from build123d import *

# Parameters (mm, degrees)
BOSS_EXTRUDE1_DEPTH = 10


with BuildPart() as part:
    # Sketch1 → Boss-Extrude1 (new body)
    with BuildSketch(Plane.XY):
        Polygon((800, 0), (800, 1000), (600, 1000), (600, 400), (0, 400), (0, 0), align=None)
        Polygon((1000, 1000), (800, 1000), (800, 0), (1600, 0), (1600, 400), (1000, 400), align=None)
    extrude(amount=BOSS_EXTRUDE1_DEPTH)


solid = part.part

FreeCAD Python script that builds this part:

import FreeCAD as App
import Part
import Sketcher
from FreeCAD import Vector
Q = App.Units.Quantity


def add_polygon(sketch, points):
    """Adds a closed chain of lines whose ends are joined by coincident constraints."""
    first, n = sketch.GeometryCount, len(points)
    for a, b in zip(points, points[1:] + points[:1]):
        sketch.addGeometry(Part.LineSegment(App.Vector(*a, 0), App.Vector(*b, 0)), False)
    for i in range(n):
        sketch.addConstraint(Sketcher.Constraint("Coincident", first + i, 2, first + (i + 1) % n, 1))

doc = App.newDocument("Part")
params = doc.addObject("Spreadsheet::Sheet", "Params")
for row, (alias, value) in enumerate([
    ("sketch1_width", "600 mm"),
    ("sketch1_width2", "1600 mm"),
    ("pad1_length", "10 mm"),
], start=1):
    params.set(f"A{row}", alias)
    params.set(f"B{row}", "=" + value)
    params.setAlias(f"B{row}", alias)

body = doc.addObject("PartDesign::Body", "Body")

# Sketch on XY plane
sketch1 = doc.addObject("Sketcher::SketchObject", "Sketch")
body.addObject(sketch1)
sketch1.AttachmentSupport = (doc.XY_Plane, [""])
sketch1.MapMode = "FlatFace"
add_polygon(sketch1, [(600, 1000), (600, 400), (0, 400), (0, 0), (1600, 0), (1600, 400), (1000, 400), (1000, 1000)])  # lines 0-7
sketch1.addConstraint(Sketcher.Constraint("Vertical", 0))
sketch1.addConstraint(Sketcher.Constraint("Horizontal", 1))
sketch1.addConstraint(Sketcher.Constraint("Vertical", 2))
sketch1.addConstraint(Sketcher.Constraint("Horizontal", 3))
sketch1.addConstraint(Sketcher.Constraint("Vertical", 4))
sketch1.addConstraint(Sketcher.Constraint("Horizontal", 5))
sketch1.addConstraint(Sketcher.Constraint("Vertical", 6))
sketch1.addConstraint(Sketcher.Constraint("Horizontal", 7))
sketch1.addConstraint(Sketcher.Constraint("Coincident", 2, 2, -1, 1))
sketch1.addConstraint(Sketcher.Constraint("Horizontal", 1, 2, 4, 2))
sketch1.addConstraint(Sketcher.Constraint("Equal", 1, 5))
sketch1.addConstraint(Sketcher.Constraint("Equal", 5, 0))
sketch1.addConstraint(Sketcher.Constraint("Equal", 7, 2))
sketch1.addConstraint(Sketcher.Constraint("DistanceX", 1, 2, 1, 1, Q("600 mm")))
sketch1.addConstraint(Sketcher.Constraint("DistanceX", 3, 1, 3, 2, Q("1600 mm")))
sketch1.setExpression("Constraints[21]", "Params.sketch1_width")
sketch1.setExpression("Constraints[22]", "Params.sketch1_width2")
pad1 = doc.addObject("PartDesign::Pad", "Pad")
body.addObject(pad1)
pad1.Profile = sketch1
pad1.setExpression("Length", "Params.pad1_length")

doc.recompute()
